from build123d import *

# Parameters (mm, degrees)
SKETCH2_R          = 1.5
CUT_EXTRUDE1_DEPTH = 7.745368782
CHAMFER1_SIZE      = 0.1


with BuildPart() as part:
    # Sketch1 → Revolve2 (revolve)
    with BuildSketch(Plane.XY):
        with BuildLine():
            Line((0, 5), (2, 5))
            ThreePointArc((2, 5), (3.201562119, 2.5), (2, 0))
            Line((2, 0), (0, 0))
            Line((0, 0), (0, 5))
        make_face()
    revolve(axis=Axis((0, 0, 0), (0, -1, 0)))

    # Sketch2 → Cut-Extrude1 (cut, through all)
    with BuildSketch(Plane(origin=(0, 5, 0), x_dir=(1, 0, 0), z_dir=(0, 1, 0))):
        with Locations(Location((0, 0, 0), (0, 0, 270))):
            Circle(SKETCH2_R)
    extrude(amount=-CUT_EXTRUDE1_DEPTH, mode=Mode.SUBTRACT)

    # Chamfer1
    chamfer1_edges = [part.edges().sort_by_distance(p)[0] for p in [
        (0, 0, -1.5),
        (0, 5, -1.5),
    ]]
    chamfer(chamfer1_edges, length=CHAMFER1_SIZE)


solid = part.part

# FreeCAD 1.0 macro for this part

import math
import FreeCAD as App
import Part
import Sketcher
from FreeCAD import Vector
Q = App.Units.Quantity


def edges_at(feature, points):
    """Names of the edges that pass closest to the given points."""
    edges = feature.Shape.Edges
    near = lambda p: min(range(len(edges)), key=lambda i: edges[i].distToShape(Part.Vertex(*p))[0])
    return sorted({f"Edge{near(p) + 1}" for p in points})

doc = App.newDocument("Part")
params = doc.addObject("Spreadsheet::Sheet", "Params")
for row, (alias, value) in enumerate([
    ("sketch1_width", "2 mm"),
    ("sketch1_height", "5 mm"),
    ("revolution_angle", "360 deg"),
    ("sketch2_diameter", "3 mm"),
    ("chamfer_size", "0.1 mm"),
], start=1):
    params.set(f"A{row}", alias)
    params.set(f"B{row}", "=" + value)
    params.setAlias(f"B{row}", alias)

body = doc.addObject("PartDesign::Body", "Body")

# Sketch on XY plane
sketch1 = body.newObject("Sketcher::SketchObject", "Sketch")
sketch1.AttachmentSupport = (doc.getObject("XY_Plane"), [""])
sketch1.MapMode = "FlatFace"
sketch1.addGeometry([
    Part.LineSegment(Vector(2, 5, 0), Vector(0, 5, 0)),
    Part.LineSegment(Vector(0, 5, 0), Vector(0, 0, 0)),
    Part.LineSegment(Vector(0, 0, 0), Vector(2, 0, 0)),
    Part.ArcOfCircle(Part.Circle(Vector(0, 2.5, 0), Vector(0, 0, 1), 3.2), math.radians(-51), math.radians(51)),
], False)
sketch1.addConstraint([
    Sketcher.Constraint("Coincident", 0, 2, 1, 1),
    Sketcher.Constraint("Coincident", 1, 2, 2, 1),
    Sketcher.Constraint("Coincident", 2, 2, 3, 1),
    Sketcher.Constraint("Coincident", 3, 2, 0, 1),
    Sketcher.Constraint("Horizontal", 0),
    Sketcher.Constraint("Vertical", 1),
    Sketcher.Constraint("Horizontal", 2),
    Sketcher.Constraint("Coincident", 1, 2, -1, 1),
    Sketcher.Constraint("PointOnObject", 3, 3, -2),
    Sketcher.Constraint("Vertical", 2, 2, 3, 2),
    Sketcher.Constraint("DistanceX", 0, 2, 0, 1, Q("2 mm")),
    Sketcher.Constraint("DistanceY", 1, 2, 1, 1, Q("5 mm")),
])
sketch1.setExpression("Constraints[10]", "Params.sketch1_width")
sketch1.setExpression("Constraints[11]", "Params.sketch1_height")
revolution = body.newObject("PartDesign::Revolution", "Revolution")
revolution.Profile = sketch1
revolution.ReferenceAxis = (sketch1, ["V_Axis"])
revolution.setExpression("Angle", "Params.revolution_angle")

# Sketch on XZ plane
sketch2 = body.newObject("Sketcher::SketchObject", "Sketch001")
sketch2.AttachmentSupport = (doc.getObject("XZ_Plane"), [""])
sketch2.MapMode = "FlatFace"
sketch2.AttachmentOffset = App.Placement(Vector(0, 0, -5), App.Rotation())
sketch2.addGeometry(Part.Circle(Vector(0, 0, 0), Vector(0, 0, 1), 1.5), False)
sketch2.addConstraint([
    Sketcher.Constraint("Coincident", 0, 3, -1, 1),
    Sketcher.Constraint("Diameter", 0, Q("3 mm")),
])
sketch2.setExpression("Constraints[1]", "Params.sketch2_diameter")
pocket1 = body.newObject("PartDesign::Pocket", "Pocket")
pocket1.Profile = sketch2
pocket1.Type = "ThroughAll"
pocket1.Reversed = True
doc.recompute()

chamfer = body.newObject("PartDesign::Chamfer", "Chamfer")
chamfer.Base = (pocket1, edges_at(pocket1, [(0, 0, -1.5), (0, 5, -1.5)]))
chamfer.setExpression("Size", "Params.chamfer_size")

doc.recompute()
